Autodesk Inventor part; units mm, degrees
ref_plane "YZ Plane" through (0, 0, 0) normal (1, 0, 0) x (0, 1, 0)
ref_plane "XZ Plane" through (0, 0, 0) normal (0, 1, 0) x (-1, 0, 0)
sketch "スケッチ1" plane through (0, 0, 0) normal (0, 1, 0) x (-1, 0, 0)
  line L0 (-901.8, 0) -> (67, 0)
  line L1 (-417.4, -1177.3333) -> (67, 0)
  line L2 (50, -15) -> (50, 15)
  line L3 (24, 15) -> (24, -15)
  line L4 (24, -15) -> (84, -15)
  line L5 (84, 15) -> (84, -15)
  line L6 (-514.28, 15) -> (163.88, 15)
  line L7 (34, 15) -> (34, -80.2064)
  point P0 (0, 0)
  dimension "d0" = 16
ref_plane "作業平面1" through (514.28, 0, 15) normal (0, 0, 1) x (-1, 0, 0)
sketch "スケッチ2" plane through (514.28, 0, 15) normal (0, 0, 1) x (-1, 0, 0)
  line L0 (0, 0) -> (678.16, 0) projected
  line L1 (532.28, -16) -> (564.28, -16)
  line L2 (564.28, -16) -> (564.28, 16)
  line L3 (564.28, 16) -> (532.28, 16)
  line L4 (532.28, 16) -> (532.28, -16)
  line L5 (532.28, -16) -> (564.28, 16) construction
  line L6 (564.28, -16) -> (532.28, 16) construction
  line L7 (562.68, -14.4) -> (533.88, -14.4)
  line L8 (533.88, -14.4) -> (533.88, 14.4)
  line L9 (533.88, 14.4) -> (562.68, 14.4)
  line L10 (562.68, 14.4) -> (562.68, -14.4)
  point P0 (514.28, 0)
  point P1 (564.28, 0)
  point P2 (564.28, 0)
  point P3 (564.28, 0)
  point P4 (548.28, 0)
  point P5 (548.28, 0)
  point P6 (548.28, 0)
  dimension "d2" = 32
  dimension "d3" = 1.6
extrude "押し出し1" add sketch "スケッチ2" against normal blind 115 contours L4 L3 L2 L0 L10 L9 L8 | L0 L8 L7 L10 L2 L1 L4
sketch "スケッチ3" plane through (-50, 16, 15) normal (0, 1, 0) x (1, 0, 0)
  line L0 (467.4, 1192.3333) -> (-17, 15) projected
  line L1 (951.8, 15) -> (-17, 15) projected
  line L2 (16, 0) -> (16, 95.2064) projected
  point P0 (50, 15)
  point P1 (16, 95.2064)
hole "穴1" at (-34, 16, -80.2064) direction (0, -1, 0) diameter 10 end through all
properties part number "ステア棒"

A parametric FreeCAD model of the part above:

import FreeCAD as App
import Part
import Sketcher
Q = App.Units.Quantity

doc = App.newDocument("Part")
params = doc.addObject("Spreadsheet::Sheet", "Params")
for row, (alias, value) in enumerate([
    ("sketch1_width", "32 mm"),
    ("pad1_length", "115 mm"),
    ("sketch2_diameter", "10 mm"),
    ("hole_diameter", "10 mm"),
], start=1):
    params.set(f"A{row}", alias)
    params.set(f"B{row}", "=" + value)
    params.setAlias(f"B{row}", alias)

body = doc.addObject("PartDesign::Body", "Body")

sketch1 = body.newObject("Sketcher::SketchObject", "Sketch")
sketch1.AttachmentSupport = (doc.getObject("XY_Plane"), [""])
sketch1.MapMode = "FlatFace"
sketch1.AttachmentOffset = App.Placement(App.Vector(0, 0, 15), App.Rotation())
sketch1.addGeometry([
    Part.LineSegment(App.Vector(-18, -16, 0), App.Vector(-18, 16, 0)),
    Part.LineSegment(App.Vector(-18, 16, 0), App.Vector(-50, 16, 0)),
    Part.LineSegment(App.Vector(-50, 16, 0), App.Vector(-50, -16, 0)),
    Part.LineSegment(App.Vector(-50, -16, 0), App.Vector(-18, -16, 0)),
    Part.LineSegment(App.Vector(-48, -14, 0), App.Vector(-48, 14, 0)),
    Part.LineSegment(App.Vector(-48, 14, 0), App.Vector(-20, 14, 0)),
    Part.LineSegment(App.Vector(-20, 14, 0), App.Vector(-20, -14, 0)),
    Part.LineSegment(App.Vector(-20, -14, 0), App.Vector(-48, -14, 0)),
], False)
sketch1.addConstraint([
    Sketcher.Constraint("Coincident", 0, 2, 1, 1),
    Sketcher.Constraint("Coincident", 1, 2, 2, 1),
    Sketcher.Constraint("Coincident", 2, 2, 3, 1),
    Sketcher.Constraint("Coincident", 3, 2, 0, 1),
    Sketcher.Constraint("Coincident", 4, 2, 5, 1),
    Sketcher.Constraint("Coincident", 5, 2, 6, 1),
    Sketcher.Constraint("Coincident", 6, 2, 7, 1),
    Sketcher.Constraint("Coincident", 7, 2, 4, 1),
    Sketcher.Constraint("Vertical", 0),
    Sketcher.Constraint("Horizontal", 1),
    Sketcher.Constraint("Vertical", 2),
    Sketcher.Constraint("Horizontal", 3),
    Sketcher.Constraint("Vertical", 4),
    Sketcher.Constraint("Horizontal", 5),
    Sketcher.Constraint("Vertical", 6),
    Sketcher.Constraint("Horizontal", 7),
    Sketcher.Constraint("Equal", 3, 0),
    Sketcher.Constraint("Equal", 7, 4),
    Sketcher.Constraint("DistanceX", 1, 2, 1, 1, Q("32 mm")),
    Sketcher.Constraint("DistanceX", 1, 2, 4, 2, Q("1.6 mm")),
    Sketcher.Constraint("DistanceY", 4, 2, 1, 2, Q("1.6 mm")),
    Sketcher.Constraint("DistanceX", 5, 2, 0, 2, Q("1.6 mm")),
    Sketcher.Constraint("DistanceX", 0, 2, -1, 1, Q("18 mm")),
    Sketcher.Constraint("DistanceY", -1, 1, 0, 2, Q("16 mm")),
])
sketch1.setExpression("Constraints[18]", "Params.sketch1_width")
pad1 = body.newObject("PartDesign::Pad", "Pad")
pad1.Profile = sketch1
pad1.setExpression("Length", "Params.pad1_length")
pad1.Reversed = True

sketch2 = body.newObject("Sketcher::SketchObject", "Sketch001")
sketch2.AttachmentSupport = (doc.getObject("XZ_Plane"), [""])
sketch2.MapMode = "FlatFace"
sketch2.AttachmentOffset = App.Placement(App.Vector(0, 0, -16), App.Rotation())
sketch2.addGeometry(Part.Circle(App.Vector(-34, -80, 0), App.Vector(0, 0, 1), 5), False)
sketch2.addConstraint([
    Sketcher.Constraint("Diameter", 0, Q("10 mm")),
    Sketcher.Constraint("DistanceX", 0, 3, -1, 1, Q("34 mm")),
    Sketcher.Constraint("DistanceY", 0, 3, -1, 1, Q("80.2064 mm")),
])
sketch2.setExpression("Constraints[0]", "Params.sketch2_diameter")
doc.recompute()
hole = body.newObject("PartDesign::Hole", "Hole")
hole.Profile = sketch2
hole.ThreadType = "None"
hole.setExpression("Diameter", "Params.hole_diameter")
hole.DepthType = "ThroughAll"
hole.Reversed = True

doc.recompute()
